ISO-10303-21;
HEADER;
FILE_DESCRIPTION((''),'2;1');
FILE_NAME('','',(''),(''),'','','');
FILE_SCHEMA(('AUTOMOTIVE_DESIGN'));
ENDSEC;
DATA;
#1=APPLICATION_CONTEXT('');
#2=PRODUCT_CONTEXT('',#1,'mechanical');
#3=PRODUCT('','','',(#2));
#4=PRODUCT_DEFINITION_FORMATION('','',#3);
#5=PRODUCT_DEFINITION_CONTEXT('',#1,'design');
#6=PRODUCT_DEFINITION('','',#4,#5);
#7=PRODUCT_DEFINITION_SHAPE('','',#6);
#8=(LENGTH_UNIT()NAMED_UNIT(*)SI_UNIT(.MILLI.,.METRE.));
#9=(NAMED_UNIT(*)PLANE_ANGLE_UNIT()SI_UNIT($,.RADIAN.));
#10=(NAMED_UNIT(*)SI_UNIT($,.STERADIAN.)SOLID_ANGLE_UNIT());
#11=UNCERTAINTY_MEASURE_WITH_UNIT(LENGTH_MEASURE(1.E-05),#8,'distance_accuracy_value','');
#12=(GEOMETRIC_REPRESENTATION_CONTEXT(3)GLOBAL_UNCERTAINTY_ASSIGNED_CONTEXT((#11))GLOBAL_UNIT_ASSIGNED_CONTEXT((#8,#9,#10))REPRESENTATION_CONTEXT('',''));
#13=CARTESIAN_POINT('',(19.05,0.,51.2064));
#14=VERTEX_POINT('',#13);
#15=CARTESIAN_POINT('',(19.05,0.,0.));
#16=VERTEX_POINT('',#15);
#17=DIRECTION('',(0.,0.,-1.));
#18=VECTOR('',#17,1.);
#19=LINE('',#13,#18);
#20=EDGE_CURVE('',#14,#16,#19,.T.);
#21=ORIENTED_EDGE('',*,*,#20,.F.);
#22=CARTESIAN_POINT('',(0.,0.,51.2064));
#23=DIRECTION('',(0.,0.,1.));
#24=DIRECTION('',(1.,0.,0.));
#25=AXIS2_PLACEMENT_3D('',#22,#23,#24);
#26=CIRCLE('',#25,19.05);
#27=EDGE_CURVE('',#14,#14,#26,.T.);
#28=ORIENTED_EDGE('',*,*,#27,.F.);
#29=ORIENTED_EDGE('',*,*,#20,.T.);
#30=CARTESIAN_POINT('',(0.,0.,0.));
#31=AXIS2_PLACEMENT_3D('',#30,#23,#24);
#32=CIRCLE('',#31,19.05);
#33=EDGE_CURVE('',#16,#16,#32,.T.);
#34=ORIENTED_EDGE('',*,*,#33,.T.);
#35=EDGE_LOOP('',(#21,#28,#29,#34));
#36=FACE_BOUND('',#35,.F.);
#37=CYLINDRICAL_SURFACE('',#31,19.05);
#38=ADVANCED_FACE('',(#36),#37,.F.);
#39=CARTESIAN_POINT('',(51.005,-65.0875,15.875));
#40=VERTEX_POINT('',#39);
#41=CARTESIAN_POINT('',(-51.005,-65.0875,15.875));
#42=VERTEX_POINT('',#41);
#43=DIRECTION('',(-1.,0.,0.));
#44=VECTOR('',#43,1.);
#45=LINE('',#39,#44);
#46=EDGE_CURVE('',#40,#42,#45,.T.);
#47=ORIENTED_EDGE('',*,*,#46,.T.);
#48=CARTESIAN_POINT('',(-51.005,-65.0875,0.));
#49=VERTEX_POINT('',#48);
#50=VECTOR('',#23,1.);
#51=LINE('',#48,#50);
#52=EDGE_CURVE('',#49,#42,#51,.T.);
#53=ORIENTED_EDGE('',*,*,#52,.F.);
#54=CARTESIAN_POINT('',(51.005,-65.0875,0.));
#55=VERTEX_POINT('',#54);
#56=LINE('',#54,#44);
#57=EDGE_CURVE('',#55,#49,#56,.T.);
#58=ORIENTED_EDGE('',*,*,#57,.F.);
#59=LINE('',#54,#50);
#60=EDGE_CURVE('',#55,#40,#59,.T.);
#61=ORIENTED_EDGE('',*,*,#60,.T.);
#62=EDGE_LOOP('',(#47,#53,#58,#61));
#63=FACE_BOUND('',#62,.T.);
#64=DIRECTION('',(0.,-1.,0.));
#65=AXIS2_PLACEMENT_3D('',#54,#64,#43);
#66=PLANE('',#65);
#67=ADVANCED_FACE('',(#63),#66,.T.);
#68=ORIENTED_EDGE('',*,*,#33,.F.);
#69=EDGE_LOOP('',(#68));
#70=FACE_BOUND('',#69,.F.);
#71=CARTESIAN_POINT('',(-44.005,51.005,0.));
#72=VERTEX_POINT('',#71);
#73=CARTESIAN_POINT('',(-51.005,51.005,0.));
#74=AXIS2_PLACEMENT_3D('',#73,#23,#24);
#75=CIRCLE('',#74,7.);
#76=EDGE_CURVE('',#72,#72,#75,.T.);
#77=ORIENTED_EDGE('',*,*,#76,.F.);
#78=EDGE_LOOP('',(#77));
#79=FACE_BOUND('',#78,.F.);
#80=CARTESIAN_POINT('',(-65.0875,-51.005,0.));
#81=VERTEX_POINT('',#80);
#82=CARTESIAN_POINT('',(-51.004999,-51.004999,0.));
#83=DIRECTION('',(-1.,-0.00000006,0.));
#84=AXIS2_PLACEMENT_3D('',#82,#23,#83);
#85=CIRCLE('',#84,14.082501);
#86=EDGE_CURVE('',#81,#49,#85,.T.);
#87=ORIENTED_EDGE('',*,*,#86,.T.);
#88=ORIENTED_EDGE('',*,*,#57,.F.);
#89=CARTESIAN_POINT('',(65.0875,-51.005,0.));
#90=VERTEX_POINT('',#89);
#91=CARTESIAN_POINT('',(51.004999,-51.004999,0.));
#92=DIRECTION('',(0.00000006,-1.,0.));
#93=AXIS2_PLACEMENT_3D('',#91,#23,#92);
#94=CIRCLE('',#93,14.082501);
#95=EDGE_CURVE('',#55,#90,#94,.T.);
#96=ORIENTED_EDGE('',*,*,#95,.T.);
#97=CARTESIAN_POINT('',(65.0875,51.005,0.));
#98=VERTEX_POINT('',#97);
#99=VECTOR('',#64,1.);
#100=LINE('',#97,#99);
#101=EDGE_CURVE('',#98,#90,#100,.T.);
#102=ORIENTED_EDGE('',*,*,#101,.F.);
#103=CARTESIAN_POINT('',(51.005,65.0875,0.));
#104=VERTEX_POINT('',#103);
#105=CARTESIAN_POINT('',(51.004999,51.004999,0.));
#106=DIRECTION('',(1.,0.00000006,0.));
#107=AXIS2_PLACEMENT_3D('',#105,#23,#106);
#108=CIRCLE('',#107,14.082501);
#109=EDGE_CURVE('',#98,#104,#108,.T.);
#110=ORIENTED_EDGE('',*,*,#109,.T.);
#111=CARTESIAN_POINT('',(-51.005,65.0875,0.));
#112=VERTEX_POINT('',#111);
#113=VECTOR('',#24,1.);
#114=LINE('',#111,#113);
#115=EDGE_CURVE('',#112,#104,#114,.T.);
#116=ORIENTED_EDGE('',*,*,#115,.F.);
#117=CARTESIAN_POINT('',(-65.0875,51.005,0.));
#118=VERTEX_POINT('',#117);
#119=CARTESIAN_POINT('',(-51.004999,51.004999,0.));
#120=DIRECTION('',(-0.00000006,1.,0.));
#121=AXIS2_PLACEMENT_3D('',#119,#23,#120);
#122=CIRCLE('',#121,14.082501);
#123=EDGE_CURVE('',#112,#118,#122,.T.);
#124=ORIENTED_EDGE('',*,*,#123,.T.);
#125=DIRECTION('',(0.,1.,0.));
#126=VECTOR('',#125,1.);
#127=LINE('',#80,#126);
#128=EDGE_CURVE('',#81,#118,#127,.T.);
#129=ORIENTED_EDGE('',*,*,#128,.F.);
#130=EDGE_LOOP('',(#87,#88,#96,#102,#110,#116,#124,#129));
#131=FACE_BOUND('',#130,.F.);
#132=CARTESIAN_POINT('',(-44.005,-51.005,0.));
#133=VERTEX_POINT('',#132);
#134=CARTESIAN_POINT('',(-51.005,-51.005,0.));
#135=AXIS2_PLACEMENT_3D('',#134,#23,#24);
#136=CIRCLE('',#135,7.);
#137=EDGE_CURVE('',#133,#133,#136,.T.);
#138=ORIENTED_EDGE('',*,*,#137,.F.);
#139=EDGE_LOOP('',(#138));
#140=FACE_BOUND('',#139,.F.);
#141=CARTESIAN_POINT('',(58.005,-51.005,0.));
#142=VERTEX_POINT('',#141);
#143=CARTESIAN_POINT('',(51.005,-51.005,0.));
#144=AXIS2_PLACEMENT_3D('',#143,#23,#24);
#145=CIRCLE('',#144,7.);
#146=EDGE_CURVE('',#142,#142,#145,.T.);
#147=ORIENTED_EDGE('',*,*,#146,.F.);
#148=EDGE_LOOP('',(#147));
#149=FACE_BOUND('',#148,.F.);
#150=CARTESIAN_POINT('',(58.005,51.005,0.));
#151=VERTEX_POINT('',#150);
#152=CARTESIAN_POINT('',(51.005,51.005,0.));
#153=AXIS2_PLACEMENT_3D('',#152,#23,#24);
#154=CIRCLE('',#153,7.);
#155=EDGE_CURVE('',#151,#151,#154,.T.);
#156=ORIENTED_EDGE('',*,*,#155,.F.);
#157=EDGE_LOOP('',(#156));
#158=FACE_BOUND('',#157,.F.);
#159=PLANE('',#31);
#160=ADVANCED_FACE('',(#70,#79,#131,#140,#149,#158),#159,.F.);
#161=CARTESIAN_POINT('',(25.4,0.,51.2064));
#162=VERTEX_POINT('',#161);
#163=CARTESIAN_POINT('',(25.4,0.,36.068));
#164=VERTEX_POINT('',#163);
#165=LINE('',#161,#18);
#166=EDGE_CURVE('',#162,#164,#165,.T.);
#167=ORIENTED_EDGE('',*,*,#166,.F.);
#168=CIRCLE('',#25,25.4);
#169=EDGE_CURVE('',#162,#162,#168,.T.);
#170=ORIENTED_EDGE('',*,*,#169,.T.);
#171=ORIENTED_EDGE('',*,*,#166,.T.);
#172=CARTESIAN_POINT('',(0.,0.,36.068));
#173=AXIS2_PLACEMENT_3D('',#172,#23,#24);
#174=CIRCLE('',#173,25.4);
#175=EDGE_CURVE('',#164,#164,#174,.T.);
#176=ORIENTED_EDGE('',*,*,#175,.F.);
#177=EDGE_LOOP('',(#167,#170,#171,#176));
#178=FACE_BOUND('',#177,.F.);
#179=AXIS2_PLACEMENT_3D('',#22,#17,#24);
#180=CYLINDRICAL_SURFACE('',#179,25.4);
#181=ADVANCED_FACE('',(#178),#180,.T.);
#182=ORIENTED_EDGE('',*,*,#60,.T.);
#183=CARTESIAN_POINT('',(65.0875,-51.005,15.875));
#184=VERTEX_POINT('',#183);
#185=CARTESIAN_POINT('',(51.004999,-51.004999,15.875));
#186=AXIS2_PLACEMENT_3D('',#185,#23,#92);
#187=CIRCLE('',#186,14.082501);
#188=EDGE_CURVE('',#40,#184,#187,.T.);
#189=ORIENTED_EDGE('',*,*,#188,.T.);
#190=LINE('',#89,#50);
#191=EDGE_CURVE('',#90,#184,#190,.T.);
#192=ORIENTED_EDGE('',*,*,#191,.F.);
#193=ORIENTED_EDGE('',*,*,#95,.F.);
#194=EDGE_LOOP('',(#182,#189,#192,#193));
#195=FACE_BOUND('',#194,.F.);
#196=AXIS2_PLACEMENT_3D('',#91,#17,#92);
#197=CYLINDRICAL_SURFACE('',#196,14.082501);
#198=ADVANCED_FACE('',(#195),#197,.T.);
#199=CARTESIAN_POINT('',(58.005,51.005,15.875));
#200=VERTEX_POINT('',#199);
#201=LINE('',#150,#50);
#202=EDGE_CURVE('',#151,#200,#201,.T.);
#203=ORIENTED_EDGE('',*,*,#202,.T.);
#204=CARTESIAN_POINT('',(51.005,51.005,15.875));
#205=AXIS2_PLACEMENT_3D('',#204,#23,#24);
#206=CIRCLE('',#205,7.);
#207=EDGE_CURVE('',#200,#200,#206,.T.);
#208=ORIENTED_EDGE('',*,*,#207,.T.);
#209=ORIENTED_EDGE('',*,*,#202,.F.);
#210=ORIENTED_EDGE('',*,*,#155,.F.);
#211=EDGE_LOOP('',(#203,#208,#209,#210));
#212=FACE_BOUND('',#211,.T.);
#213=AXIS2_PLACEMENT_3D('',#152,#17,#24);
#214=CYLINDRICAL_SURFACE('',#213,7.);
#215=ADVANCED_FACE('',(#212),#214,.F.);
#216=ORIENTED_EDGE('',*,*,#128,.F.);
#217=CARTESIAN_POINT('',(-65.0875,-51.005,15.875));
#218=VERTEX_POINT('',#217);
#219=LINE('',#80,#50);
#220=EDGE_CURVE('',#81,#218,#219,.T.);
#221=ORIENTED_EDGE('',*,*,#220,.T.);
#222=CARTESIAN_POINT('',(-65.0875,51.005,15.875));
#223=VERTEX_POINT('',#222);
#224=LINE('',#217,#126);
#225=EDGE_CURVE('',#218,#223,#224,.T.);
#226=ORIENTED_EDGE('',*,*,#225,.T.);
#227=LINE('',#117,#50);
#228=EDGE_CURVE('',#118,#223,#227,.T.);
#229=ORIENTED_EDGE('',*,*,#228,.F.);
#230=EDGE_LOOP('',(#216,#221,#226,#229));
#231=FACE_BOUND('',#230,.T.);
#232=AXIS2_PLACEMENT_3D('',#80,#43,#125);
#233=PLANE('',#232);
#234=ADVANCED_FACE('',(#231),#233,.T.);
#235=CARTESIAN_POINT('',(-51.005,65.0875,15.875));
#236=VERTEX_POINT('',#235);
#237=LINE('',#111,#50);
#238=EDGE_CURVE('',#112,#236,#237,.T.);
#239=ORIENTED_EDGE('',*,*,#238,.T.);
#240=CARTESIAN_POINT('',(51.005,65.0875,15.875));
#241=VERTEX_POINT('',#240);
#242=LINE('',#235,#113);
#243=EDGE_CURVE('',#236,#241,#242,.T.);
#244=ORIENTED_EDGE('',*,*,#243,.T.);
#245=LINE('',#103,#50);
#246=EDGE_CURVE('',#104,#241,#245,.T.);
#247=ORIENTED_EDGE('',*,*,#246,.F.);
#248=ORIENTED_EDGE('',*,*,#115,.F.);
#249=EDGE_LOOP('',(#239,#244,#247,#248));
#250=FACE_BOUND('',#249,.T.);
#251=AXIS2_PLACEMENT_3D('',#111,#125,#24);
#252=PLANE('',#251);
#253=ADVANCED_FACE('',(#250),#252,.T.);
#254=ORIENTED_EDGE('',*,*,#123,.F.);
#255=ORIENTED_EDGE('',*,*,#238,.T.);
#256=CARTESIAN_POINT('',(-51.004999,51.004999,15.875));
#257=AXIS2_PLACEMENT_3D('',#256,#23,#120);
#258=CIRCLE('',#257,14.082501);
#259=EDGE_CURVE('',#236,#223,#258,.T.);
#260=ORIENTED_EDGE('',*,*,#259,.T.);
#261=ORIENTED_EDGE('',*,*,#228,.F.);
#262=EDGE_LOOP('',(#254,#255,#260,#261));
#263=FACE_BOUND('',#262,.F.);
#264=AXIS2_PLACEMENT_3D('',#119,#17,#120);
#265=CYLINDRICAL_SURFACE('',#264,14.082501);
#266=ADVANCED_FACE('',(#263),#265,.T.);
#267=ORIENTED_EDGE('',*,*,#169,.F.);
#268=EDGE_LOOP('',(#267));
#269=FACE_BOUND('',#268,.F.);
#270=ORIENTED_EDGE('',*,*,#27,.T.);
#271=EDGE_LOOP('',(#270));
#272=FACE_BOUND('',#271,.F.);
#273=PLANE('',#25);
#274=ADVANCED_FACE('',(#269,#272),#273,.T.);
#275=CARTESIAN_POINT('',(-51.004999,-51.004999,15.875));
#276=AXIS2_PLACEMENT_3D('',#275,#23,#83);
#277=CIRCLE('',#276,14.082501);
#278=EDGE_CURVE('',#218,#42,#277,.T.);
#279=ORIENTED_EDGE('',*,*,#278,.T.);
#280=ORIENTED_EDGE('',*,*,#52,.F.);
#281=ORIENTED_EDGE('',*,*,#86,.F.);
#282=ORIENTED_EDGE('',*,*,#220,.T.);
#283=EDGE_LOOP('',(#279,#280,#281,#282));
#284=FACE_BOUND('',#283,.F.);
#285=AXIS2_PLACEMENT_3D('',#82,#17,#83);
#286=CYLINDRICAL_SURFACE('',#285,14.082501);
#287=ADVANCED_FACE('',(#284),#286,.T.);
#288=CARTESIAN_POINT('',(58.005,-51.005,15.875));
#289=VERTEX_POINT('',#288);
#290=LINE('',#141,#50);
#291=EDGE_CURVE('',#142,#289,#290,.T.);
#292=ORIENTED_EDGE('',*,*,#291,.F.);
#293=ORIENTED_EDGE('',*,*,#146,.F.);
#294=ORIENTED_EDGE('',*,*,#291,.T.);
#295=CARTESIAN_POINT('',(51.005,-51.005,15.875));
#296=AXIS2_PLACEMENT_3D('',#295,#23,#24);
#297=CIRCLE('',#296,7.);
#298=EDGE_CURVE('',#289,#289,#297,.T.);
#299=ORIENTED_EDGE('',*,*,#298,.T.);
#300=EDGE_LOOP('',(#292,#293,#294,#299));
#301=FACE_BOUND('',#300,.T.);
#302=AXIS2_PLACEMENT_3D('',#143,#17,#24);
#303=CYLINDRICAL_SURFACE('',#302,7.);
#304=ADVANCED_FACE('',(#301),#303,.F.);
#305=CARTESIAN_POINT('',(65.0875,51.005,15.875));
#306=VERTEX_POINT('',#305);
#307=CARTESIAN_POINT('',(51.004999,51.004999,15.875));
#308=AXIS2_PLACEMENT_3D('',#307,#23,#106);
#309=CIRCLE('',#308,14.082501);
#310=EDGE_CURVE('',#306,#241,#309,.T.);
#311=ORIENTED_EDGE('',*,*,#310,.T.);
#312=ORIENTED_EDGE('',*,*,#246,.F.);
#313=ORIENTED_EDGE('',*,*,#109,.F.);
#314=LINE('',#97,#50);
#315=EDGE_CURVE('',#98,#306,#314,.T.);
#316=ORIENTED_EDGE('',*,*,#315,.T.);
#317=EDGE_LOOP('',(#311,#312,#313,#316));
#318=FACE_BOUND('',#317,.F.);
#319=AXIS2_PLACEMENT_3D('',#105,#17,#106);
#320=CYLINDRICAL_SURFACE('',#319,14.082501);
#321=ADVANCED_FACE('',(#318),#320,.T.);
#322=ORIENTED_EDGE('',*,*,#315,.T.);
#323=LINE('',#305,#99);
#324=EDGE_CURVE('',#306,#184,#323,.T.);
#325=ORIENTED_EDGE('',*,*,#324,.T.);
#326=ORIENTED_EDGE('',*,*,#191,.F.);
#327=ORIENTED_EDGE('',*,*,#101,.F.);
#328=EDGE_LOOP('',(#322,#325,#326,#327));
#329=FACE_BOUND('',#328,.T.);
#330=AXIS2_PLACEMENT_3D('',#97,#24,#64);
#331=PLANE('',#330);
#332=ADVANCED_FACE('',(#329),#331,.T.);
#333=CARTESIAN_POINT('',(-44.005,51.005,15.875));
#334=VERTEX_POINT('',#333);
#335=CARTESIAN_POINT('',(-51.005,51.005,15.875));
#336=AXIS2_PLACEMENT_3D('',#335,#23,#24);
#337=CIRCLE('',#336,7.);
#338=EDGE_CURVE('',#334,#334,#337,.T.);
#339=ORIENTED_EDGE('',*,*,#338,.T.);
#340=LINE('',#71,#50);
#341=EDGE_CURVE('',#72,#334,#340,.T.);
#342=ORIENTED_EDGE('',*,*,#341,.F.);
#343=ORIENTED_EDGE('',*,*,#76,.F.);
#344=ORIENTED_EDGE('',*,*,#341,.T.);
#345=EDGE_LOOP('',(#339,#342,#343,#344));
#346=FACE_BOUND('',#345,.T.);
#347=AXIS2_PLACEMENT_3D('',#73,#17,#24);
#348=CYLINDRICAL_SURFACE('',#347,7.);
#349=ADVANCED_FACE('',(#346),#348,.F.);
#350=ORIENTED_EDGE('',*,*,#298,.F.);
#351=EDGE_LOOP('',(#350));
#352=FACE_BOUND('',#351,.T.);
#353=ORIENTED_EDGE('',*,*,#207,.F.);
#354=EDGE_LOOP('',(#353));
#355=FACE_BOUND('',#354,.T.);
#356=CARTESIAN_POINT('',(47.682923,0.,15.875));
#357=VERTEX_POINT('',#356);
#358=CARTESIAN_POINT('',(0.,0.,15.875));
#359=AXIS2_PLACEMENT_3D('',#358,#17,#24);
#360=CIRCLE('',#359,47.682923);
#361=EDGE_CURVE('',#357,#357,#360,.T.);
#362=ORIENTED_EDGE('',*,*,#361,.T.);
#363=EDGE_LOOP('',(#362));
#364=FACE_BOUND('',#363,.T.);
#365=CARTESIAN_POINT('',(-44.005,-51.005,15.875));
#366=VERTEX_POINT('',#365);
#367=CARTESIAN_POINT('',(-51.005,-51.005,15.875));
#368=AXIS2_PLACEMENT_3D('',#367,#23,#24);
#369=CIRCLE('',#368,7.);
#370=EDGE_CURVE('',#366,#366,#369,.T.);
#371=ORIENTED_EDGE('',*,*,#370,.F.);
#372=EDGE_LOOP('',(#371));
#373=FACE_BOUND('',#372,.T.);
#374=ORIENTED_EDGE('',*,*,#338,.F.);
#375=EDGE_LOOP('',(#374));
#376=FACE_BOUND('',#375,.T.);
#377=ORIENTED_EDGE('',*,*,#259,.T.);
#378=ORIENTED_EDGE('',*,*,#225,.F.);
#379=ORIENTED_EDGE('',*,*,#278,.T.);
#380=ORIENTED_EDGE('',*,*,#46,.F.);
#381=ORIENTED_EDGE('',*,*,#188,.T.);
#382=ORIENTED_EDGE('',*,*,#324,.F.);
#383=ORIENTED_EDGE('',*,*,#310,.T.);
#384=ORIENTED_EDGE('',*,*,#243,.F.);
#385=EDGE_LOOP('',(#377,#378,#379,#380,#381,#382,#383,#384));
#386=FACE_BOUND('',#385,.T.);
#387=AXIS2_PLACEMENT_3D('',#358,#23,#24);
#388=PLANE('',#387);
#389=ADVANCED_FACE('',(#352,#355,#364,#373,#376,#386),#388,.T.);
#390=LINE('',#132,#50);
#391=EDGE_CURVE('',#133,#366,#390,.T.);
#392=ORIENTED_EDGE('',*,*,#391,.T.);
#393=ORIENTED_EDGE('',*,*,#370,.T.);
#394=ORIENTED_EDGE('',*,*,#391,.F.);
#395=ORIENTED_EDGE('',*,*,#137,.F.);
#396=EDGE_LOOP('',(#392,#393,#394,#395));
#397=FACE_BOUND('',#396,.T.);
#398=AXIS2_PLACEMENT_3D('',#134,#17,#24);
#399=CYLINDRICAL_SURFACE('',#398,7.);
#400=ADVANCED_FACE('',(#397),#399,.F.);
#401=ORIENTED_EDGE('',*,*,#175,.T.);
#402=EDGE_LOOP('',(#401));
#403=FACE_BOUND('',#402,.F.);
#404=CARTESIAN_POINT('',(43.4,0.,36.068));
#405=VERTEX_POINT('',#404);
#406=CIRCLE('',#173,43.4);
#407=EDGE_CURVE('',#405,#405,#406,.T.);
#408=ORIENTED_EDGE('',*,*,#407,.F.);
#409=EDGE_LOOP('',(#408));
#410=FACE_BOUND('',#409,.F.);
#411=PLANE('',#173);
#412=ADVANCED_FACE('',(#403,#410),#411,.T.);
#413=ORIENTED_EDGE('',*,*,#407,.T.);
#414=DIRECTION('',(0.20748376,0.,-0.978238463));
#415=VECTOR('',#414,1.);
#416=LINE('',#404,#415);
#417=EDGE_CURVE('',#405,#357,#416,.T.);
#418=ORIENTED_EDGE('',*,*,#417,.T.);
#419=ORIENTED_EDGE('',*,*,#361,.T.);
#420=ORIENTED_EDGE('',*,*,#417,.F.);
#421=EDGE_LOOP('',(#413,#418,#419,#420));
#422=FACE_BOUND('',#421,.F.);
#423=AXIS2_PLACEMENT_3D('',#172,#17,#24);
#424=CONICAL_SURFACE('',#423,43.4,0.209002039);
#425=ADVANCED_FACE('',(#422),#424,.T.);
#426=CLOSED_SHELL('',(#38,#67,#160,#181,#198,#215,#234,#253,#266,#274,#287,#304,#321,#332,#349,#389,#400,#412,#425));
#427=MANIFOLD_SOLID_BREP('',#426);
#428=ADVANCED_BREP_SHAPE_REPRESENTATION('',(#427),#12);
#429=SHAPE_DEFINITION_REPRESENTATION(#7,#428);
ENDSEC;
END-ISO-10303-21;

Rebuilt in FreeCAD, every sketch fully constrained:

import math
import FreeCAD as App
import Part
import Sketcher
from FreeCAD import Vector
Q = App.Units.Quantity

doc = App.newDocument("Part")
body = doc.addObject("PartDesign::Body", "Body")

sketch1 = body.newObject("Sketcher::SketchObject", "Sketch")
sketch1.AttachmentSupport = (doc.getObject("XZ_Plane"), [""])
sketch1.MapMode = "FlatFace"
sketch1.addGeometry([
    Part.LineSegment(Vector(19.05, 51.2064, 0), Vector(19.05, 0, 0)),
    Part.LineSegment(Vector(19.05, 0, 0), Vector(51.05, 0, 0)),
    Part.LineSegment(Vector(51.05, 0, 0), Vector(43.4, 36.068, 0)),
    Part.LineSegment(Vector(43.4, 36.068, 0), Vector(25.4, 36.068, 0)),
    Part.LineSegment(Vector(25.4, 36.068, 0), Vector(25.4, 51.2064, 0)),
    Part.LineSegment(Vector(25.4, 51.2064, 0), Vector(19.05, 51.2064, 0)),
], False)
sketch1.addConstraint([
    Sketcher.Constraint("Coincident", 0, 2, 1, 1),
    Sketcher.Constraint("Coincident", 1, 2, 2, 1),
    Sketcher.Constraint("Coincident", 2, 2, 3, 1),
    Sketcher.Constraint("Coincident", 3, 2, 4, 1),
    Sketcher.Constraint("Coincident", 4, 2, 5, 1),
    Sketcher.Constraint("Coincident", 5, 2, 0, 1),
    Sketcher.Constraint("Vertical", 0),
    Sketcher.Constraint("Horizontal", 1),
    Sketcher.Constraint("Horizontal", 3),
    Sketcher.Constraint("Vertical", 4),
    Sketcher.Constraint("Horizontal", 5),
    Sketcher.Constraint("PointOnObject", 0, 2, -1),
    Sketcher.Constraint("DistanceX", -1, 1, 3, 2, Q("1 in")),
    Sketcher.Constraint("DistanceX", 5, 2, 5, 1, Q("0.25 in")),
    Sketcher.Constraint("DistanceY", 0, 2, 0, 1, Q("2.016 in")),
    Sketcher.Constraint("DistanceY", 4, 1, 4, 2, Q("0.596 in")),
    Sketcher.Constraint("DistanceX", 1, 1, 1, 2, Q("32 mm")),
    Sketcher.Constraint("DistanceX", 3, 2, 3, 1, Q("18 mm")),
])
revolution = body.newObject("PartDesign::Revolution", "Revolution")
revolution.Profile = sketch1
revolution.ReferenceAxis = (sketch1, ["V_Axis"])
revolution.Angle = 360

sketch2 = body.newObject("Sketcher::SketchObject", "Sketch001")
sketch2.AttachmentSupport = (doc.getObject("XY_Plane"), [""])
sketch2.MapMode = "FlatFace"
sketch2.addGeometry([
    Part.ArcOfCircle(Part.Circle(Vector(-51.004999, 51.004999, 0), Vector(0, 0, 1), 14.082501), math.radians(90.000003), math.radians(179.999997)),
    Part.LineSegment(Vector(-65.0875, 51.005, 0), Vector(-65.0875, -51.005, 0)),
    Part.ArcOfCircle(Part.Circle(Vector(-51.004999, -51.004999, 0), Vector(0, 0, 1), 14.082501), math.radians(-179.999997), math.radians(-90.000003)),
    Part.LineSegment(Vector(-51.005, -65.0875, 0), Vector(51.005, -65.0875, 0)),
    Part.ArcOfCircle(Part.Circle(Vector(51.004999, -51.004999, 0), Vector(0, 0, 1), 14.082501), math.radians(-89.999997), math.radians(-0.000003)),
    Part.LineSegment(Vector(65.0875, -51.005, 0), Vector(65.0875, 51.005, 0)),
    Part.ArcOfCircle(Part.Circle(Vector(51.004999, 51.004999, 0), Vector(0, 0, 1), 14.082501), math.radians(0.000003), math.radians(89.999997)),
    Part.LineSegment(Vector(51.005, 65.0875, 0), Vector(-51.005, 65.0875, 0)),
    Part.Circle(Vector(-51.005, -51.005, 0), Vector(0, 0, 1), 7),
    Part.Circle(Vector(51.005, -51.005, 0), Vector(0, 0, 1), 7),
    Part.Circle(Vector(-51.005, 51.005, 0), Vector(0, 0, 1), 7),
    Part.Circle(Vector(0, 0, 0), Vector(0, 0, 1), 19.05),
    Part.Circle(Vector(51.005, 51.005, 0), Vector(0, 0, 1), 7),
], False)
sketch2.addConstraint([
    Sketcher.Constraint("Tangent", 0, 2, 1, 1),
    Sketcher.Constraint("Tangent", 1, 2, 2, 1),
    Sketcher.Constraint("Tangent", 2, 2, 3, 1),
    Sketcher.Constraint("Tangent", 3, 2, 4, 1),
    Sketcher.Constraint("Tangent", 4, 2, 5, 1),
    Sketcher.Constraint("Tangent", 5, 2, 6, 1),
    Sketcher.Constraint("Tangent", 6, 2, 7, 1),
    Sketcher.Constraint("Tangent", 7, 2, 0, 1),
    Sketcher.Constraint("Vertical", 1),
    Sketcher.Constraint("Horizontal", 3),
    Sketcher.Constraint("Vertical", 5),
    Sketcher.Constraint("Horizontal", 7),
    Sketcher.Constraint("Coincident", 11, 3, -1, 1),
    Sketcher.Constraint("Coincident", 8, 3, 2, 3),
    Sketcher.Constraint("Coincident", 9, 3, 4, 3),
    Sketcher.Constraint("Coincident", 10, 3, 0, 3),
    Sketcher.Constraint("Coincident", 12, 3, 6, 3),
    Sketcher.Constraint("Equal", 0, 2),
    Sketcher.Constraint("Equal", 2, 4),
    Sketcher.Constraint("Equal", 4, 6),
    Sketcher.Constraint("Equal", 8, 9),
    Sketcher.Constraint("Equal", 9, 10),
    Sketcher.Constraint("Equal", 10, 12),
    Sketcher.Constraint("Symmetric", 0, 3, 4, 3, -1, 1),
    Sketcher.Constraint("Equal", 7, 1),
    Sketcher.Constraint("Diameter", 11, Q("1.5 in")),
    Sketcher.Constraint("Diameter", 8, Q("14 mm")),
    Sketcher.Constraint("Radius", 0, Q("14.082501 mm")),
    Sketcher.Constraint("DistanceX", 0, 2, -1, 1, Q("2.5625 in")),
])
pad1 = body.newObject("PartDesign::Pad", "Pad")
pad1.Profile = sketch2
pad1.Length = Q("0.625 in")

doc.recompute()
